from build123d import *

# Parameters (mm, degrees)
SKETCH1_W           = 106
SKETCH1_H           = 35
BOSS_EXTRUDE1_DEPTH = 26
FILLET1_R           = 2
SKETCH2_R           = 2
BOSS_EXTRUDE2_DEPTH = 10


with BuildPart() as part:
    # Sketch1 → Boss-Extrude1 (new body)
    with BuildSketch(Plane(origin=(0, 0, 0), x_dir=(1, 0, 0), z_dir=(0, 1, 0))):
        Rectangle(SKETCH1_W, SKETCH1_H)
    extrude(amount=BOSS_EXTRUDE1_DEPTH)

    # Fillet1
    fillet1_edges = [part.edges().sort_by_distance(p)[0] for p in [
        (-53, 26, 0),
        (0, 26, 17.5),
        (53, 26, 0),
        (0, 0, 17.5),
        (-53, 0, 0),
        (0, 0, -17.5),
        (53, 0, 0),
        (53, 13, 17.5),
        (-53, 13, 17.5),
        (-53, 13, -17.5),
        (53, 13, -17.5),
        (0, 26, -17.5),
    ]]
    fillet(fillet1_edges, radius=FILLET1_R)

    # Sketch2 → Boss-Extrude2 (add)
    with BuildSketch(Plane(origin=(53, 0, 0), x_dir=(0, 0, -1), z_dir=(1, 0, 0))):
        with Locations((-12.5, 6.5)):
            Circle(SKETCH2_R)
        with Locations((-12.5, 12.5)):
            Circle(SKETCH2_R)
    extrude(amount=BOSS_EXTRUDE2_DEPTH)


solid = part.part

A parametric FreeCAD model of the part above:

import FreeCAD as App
import Part
import Sketcher

doc = App.newDocument("Part")
body = doc.addObject("PartDesign::Body", "Body")

sketch1 = body.newObject("Sketcher::SketchObject", "Sketch")
sketch1.AttachmentSupport = (doc.getObject("XZ_Plane"), [""])
sketch1.MapMode = "FlatFace"
sketch1.addGeometry([
    Part.LineSegment(App.Vector(-53, -18, 0), App.Vector(-53, 18, 0)),
    Part.LineSegment(App.Vector(-53, 18, 0), App.Vector(53, 18, 0)),
    Part.LineSegment(App.Vector(53, 18, 0), App.Vector(53, -18, 0)),
    Part.LineSegment(App.Vector(53, -18, 0), App.Vector(-53, -18, 0)),
], False)
sketch1.addConstraint([
    Sketcher.Constraint("Coincident", 0, 2, 1, 1),
    Sketcher.Constraint("Coincident", 1, 2, 2, 1),
    Sketcher.Constraint("Coincident", 2, 2, 3, 1),
    Sketcher.Constraint("Coincident", 3, 2, 0, 1),
    Sketcher.Constraint("Vertical", 0),
    Sketcher.Constraint("Horizontal", 1),
    Sketcher.Constraint("Vertical", 2),
    Sketcher.Constraint("Horizontal", 3),
    Sketcher.Constraint("Symmetric", 0, 2, 2, 2, -1, 1),
    Sketcher.Constraint("DistanceX", 1, 1, 1, 2, 106.0),
    Sketcher.Constraint("DistanceY", 0, 1, 0, 2, 35.0),
])
pad1 = body.newObject("PartDesign::Pad", "Pad")
pad1.Profile = sketch1
pad1.Length = 26
pad1.Reversed = True
doc.recompute()

fillet = body.newObject("PartDesign::Fillet", "Fillet")
fillet.Base = (pad1, ["Edge1"])
fillet.UseAllEdges = True
fillet.Radius = 2

sketch2 = body.newObject("Sketcher::SketchObject", "Sketch001")
sketch2.AttachmentSupport = (doc.getObject("YZ_Plane"), [""])
sketch2.MapMode = "FlatFace"
sketch2.AttachmentOffset = App.Placement(App.Vector(0, 0, 53), App.Rotation())
sketch2.addGeometry([
    Part.Circle(App.Vector(6.5, 12.5, 0), App.Vector(0, 0, 1), 2),
    Part.Circle(App.Vector(12.5, 12.5, 0), App.Vector(0, 0, 1), 2),
], False)
sketch2.addConstraint([
    Sketcher.Constraint("Equal", 0, 1),
    Sketcher.Constraint("Horizontal", 0, 3, 1, 3),
    Sketcher.Constraint("Diameter", 0, 4.0),
    Sketcher.Constraint("DistanceX", 0, 3, 1, 3, 6.0),
    Sketcher.Constraint("DistanceX", -1, 1, 0, 3, 6.5),
    Sketcher.Constraint("DistanceY", -1, 1, 0, 3, 12.5),
])
pad2 = body.newObject("PartDesign::Pad", "Pad001")
pad2.Profile = sketch2
pad2.Length = 10

doc.recompute()
